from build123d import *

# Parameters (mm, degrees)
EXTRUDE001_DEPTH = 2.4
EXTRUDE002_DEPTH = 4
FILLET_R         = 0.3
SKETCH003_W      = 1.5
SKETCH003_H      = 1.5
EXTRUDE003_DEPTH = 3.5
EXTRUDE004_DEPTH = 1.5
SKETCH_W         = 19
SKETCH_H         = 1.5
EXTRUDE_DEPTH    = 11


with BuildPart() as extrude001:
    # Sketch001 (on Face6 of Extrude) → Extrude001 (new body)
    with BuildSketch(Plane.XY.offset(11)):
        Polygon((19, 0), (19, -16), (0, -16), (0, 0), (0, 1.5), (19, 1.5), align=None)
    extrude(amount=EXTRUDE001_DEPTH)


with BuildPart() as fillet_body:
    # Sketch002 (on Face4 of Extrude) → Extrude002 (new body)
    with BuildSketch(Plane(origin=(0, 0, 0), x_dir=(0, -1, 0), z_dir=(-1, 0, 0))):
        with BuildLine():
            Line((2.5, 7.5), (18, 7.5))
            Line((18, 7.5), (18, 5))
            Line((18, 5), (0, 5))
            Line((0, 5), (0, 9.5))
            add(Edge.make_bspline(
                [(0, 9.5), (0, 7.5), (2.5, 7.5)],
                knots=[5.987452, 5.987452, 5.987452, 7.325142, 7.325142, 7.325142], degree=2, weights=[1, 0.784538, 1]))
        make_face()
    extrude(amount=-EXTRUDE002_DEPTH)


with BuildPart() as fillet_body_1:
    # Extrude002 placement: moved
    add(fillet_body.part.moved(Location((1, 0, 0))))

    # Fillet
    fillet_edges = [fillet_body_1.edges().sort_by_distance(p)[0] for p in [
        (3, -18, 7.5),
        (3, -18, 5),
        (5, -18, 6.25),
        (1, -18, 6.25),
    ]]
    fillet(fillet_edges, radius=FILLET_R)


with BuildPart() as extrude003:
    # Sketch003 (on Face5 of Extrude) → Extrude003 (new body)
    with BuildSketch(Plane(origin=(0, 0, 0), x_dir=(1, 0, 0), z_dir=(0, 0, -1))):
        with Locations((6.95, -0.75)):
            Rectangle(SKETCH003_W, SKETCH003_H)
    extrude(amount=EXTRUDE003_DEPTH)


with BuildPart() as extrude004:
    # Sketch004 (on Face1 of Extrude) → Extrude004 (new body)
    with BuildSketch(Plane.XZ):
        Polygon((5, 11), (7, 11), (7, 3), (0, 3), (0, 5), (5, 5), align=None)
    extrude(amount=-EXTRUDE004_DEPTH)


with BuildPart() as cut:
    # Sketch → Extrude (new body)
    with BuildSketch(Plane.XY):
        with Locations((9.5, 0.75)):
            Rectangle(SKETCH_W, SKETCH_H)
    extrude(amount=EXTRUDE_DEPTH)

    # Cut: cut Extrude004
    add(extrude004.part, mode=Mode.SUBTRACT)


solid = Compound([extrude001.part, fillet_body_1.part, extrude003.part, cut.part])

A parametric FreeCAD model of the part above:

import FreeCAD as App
import Part
import Sketcher
from FreeCAD import Vector
Q = App.Units.Quantity


def edges_at(feature, points):
    """Names of the edges that pass closest to the given points."""
    edges = feature.Shape.Edges
    near = lambda p: min(range(len(edges)), key=lambda i: edges[i].distToShape(Part.Vertex(*p))[0])
    return sorted({f"Edge{near(p) + 1}" for p in points})


def add_polygon(sketch, points):
    """Adds a closed chain of lines whose ends are joined by coincident constraints."""
    first, n = sketch.GeometryCount, len(points)
    for a, b in zip(points, points[1:] + points[:1]):
        sketch.addGeometry(Part.LineSegment(App.Vector(*a, 0), App.Vector(*b, 0)), False)
    for i in range(n):
        sketch.addConstraint(Sketcher.Constraint("Coincident", first + i, 2, first + (i + 1) % n, 1))

doc = App.newDocument("Part")
body = doc.addObject("PartDesign::Body", "Body")

sketch1 = doc.addObject("Sketcher::SketchObject", "Sketch")
body.addObject(sketch1)
sketch1.AttachmentSupport = (doc.XY_Plane, [""])
sketch1.MapMode = "FlatFace"
sketch1.AttachmentOffset = App.Placement(Vector(0, 0, 11), App.Rotation())
add_polygon(sketch1, [(19, -16), (19, 2), (0, 2), (0, -16)])
sketch1.addConstraint(Sketcher.Constraint("Vertical", 0))
sketch1.addConstraint(Sketcher.Constraint("Horizontal", 1))
sketch1.addConstraint(Sketcher.Constraint("Vertical", 2))
sketch1.addConstraint(Sketcher.Constraint("Horizontal", 3))
sketch1.addConstraint(Sketcher.Constraint("PointOnObject", 1, 2, -2))
sketch1.addConstraint(Sketcher.Constraint("DistanceX", 1, 2, 1, 1, Q("19 mm")))
sketch1.addConstraint(Sketcher.Constraint("DistanceY", 0, 1, 0, 2, Q("17.5 mm")))
sketch1.addConstraint(Sketcher.Constraint("DistanceY", 2, 2, -1, 1, Q("16 mm")))
pad1 = doc.addObject("PartDesign::Pad", "Pad")
body.addObject(pad1)
pad1.Profile = sketch1
pad1.Length = 2.4
body2 = doc.addObject("PartDesign::Body", "Body001")

sketch2 = doc.addObject("Sketcher::SketchObject", "Sketch001")
body2.addObject(sketch2)
sketch2.AttachmentSupport = (doc.getObject("YZ_Plane001"), [""])
sketch2.MapMode = "FlatFace"
sketch2.addGeometry(Part.LineSegment(Vector(-18, 7.5, 0), Vector(-2.5, 7.5, 0)), False)
sketch2.addGeometry(Part.BSplineCurve([Vector(0, 9.5, 0), Vector(0, 7.5, 0), Vector(-2.5, 7.5, 0)], [3, 3], [5.987452, 7.325142], False, 2, [1, 0.784538, 1], False), False)
sketch2.addGeometry(Part.LineSegment(Vector(0, 9.5, 0), Vector(0, 5, 0)), False)
sketch2.addGeometry(Part.LineSegment(Vector(0, 5, 0), Vector(-18, 5, 0)), False)
sketch2.addGeometry(Part.LineSegment(Vector(-18, 5, 0), Vector(-18, 7.5, 0)), False)
sketch2.addConstraint(Sketcher.Constraint("Block", 1))
sketch2.addConstraint(Sketcher.Constraint("Coincident", 0, 2, 1, 2))
sketch2.addConstraint(Sketcher.Constraint("Coincident", 1, 1, 2, 1))
sketch2.addConstraint(Sketcher.Constraint("Coincident", 2, 2, 3, 1))
sketch2.addConstraint(Sketcher.Constraint("Coincident", 3, 2, 4, 1))
sketch2.addConstraint(Sketcher.Constraint("Coincident", 4, 2, 0, 1))
sketch2.addConstraint(Sketcher.Constraint("Horizontal", 0))
sketch2.addConstraint(Sketcher.Constraint("Vertical", 2))
sketch2.addConstraint(Sketcher.Constraint("Horizontal", 3))
sketch2.addConstraint(Sketcher.Constraint("Vertical", 4))
sketch2.addConstraint(Sketcher.Constraint("DistanceX", 3, 2, 3, 1, Q("18 mm")))
sketch2.addConstraint(Sketcher.Constraint("DistanceY", 2, 2, 2, 1, Q("4.5 mm")))
pad2 = doc.addObject("PartDesign::Pad", "Pad001")
body2.addObject(pad2)
pad2.Profile = sketch2
pad2.Length = 4
body3 = doc.addObject("PartDesign::Body", "Body002")
doc.recompute()

body2.Placement = App.Placement(Vector(1, 0, 0), App.Rotation(Vector(0, 0, 1), 0))
boolean = doc.addObject("PartDesign::Boolean", "Boolean")
body3.addObject(boolean)
boolean.Type = "Fuse"
boolean.addObjects([body2])
doc.recompute()

fillet = doc.addObject("PartDesign::Fillet", "Fillet")
body3.addObject(fillet)
fillet.Base = (boolean, edges_at(boolean, [
    (3, -18, 7.5),
    (3, -18, 5),
    (5, -18, 6.25),
    (1, -18, 6.25),
]))
fillet.Radius = 0.3
body4 = doc.addObject("PartDesign::Body", "Body003")

sketch3 = doc.addObject("Sketcher::SketchObject", "Sketch002")
body4.addObject(sketch3)
sketch3.AttachmentSupport = (doc.getObject("XY_Plane003"), [""])
sketch3.MapMode = "FlatFace"
add_polygon(sketch3, [(6.2, 0), (6.2, 1.5), (7.7, 1.5), (7.7, 0)])
sketch3.addConstraint(Sketcher.Constraint("Vertical", 0))
sketch3.addConstraint(Sketcher.Constraint("Horizontal", 1))
sketch3.addConstraint(Sketcher.Constraint("Vertical", 2))
sketch3.addConstraint(Sketcher.Constraint("Horizontal", 3))
sketch3.addConstraint(Sketcher.Constraint("PointOnObject", 2, 2, -1))
sketch3.addConstraint(Sketcher.Constraint("Equal", 3, 0))
sketch3.addConstraint(Sketcher.Constraint("DistanceX", 1, 1, 1, 2, Q("1.5 mm")))
sketch3.addConstraint(Sketcher.Constraint("DistanceX", -1, 1, 0, 2, Q("6.2 mm")))
pad3 = doc.addObject("PartDesign::Pad", "Pad002")
body4.addObject(pad3)
pad3.Profile = sketch3
pad3.Length = 3.5
pad3.Reversed = True
body5 = doc.addObject("PartDesign::Body", "Body004")

sketch4 = doc.addObject("Sketcher::SketchObject", "Sketch003")
body5.addObject(sketch4)
sketch4.AttachmentSupport = (doc.getObject("XZ_Plane004"), [""])
sketch4.MapMode = "FlatFace"
add_polygon(sketch4, [(7, 11), (5, 11), (5, 5), (0, 5), (0, 3), (7, 3)])
sketch4.addConstraint(Sketcher.Constraint("Horizontal", 0))
sketch4.addConstraint(Sketcher.Constraint("Vertical", 1))
sketch4.addConstraint(Sketcher.Constraint("Horizontal", 2))
sketch4.addConstraint(Sketcher.Constraint("Vertical", 3))
sketch4.addConstraint(Sketcher.Constraint("Horizontal", 4))
sketch4.addConstraint(Sketcher.Constraint("Vertical", 5))
sketch4.addConstraint(Sketcher.Constraint("PointOnObject", 2, 2, -2))
sketch4.addConstraint(Sketcher.Constraint("Equal", 0, 3))
sketch4.addConstraint(Sketcher.Constraint("DistanceX", 0, 2, 0, 1, Q("2 mm")))
sketch4.addConstraint(Sketcher.Constraint("DistanceX", 2, 2, 2, 1, Q("5 mm")))
sketch4.addConstraint(Sketcher.Constraint("DistanceY", 1, 2, 1, 1, Q("6 mm")))
sketch4.addConstraint(Sketcher.Constraint("DistanceY", -1, 1, 0, 2, Q("11 mm")))
pad4 = doc.addObject("PartDesign::Pad", "Pad003")
body5.addObject(pad4)
pad4.Profile = sketch4
pad4.Length = 1.5
pad4.Reversed = True
body6 = doc.addObject("PartDesign::Body", "Body005")
body6.AllowCompound = True

sketch5 = doc.addObject("Sketcher::SketchObject", "Sketch004")
body6.addObject(sketch5)
sketch5.AttachmentSupport = (doc.getObject("XY_Plane005"), [""])
sketch5.MapMode = "FlatFace"
add_polygon(sketch5, [(0, 1.5), (0, 0), (19, 0), (19, 1.5)])
sketch5.addConstraint(Sketcher.Constraint("Vertical", 0))
sketch5.addConstraint(Sketcher.Constraint("Horizontal", 1))
sketch5.addConstraint(Sketcher.Constraint("Vertical", 2))
sketch5.addConstraint(Sketcher.Constraint("Horizontal", 3))
sketch5.addConstraint(Sketcher.Constraint("Coincident", 0, 2, -1, 1))
sketch5.addConstraint(Sketcher.Constraint("DistanceX", 1, 1, 1, 2, Q("19 mm")))
sketch5.addConstraint(Sketcher.Constraint("DistanceY", 0, 2, 0, 1, Q("1.5 mm")))
pad5 = doc.addObject("PartDesign::Pad", "Pad004")
body6.addObject(pad5)
pad5.Profile = sketch5
pad5.Length = 11
doc.recompute()

boolean2 = doc.addObject("PartDesign::Boolean", "Boolean001")
body6.addObject(boolean2)
boolean2.Type = "Cut"
boolean2.addObjects([body5])

doc.recompute()
